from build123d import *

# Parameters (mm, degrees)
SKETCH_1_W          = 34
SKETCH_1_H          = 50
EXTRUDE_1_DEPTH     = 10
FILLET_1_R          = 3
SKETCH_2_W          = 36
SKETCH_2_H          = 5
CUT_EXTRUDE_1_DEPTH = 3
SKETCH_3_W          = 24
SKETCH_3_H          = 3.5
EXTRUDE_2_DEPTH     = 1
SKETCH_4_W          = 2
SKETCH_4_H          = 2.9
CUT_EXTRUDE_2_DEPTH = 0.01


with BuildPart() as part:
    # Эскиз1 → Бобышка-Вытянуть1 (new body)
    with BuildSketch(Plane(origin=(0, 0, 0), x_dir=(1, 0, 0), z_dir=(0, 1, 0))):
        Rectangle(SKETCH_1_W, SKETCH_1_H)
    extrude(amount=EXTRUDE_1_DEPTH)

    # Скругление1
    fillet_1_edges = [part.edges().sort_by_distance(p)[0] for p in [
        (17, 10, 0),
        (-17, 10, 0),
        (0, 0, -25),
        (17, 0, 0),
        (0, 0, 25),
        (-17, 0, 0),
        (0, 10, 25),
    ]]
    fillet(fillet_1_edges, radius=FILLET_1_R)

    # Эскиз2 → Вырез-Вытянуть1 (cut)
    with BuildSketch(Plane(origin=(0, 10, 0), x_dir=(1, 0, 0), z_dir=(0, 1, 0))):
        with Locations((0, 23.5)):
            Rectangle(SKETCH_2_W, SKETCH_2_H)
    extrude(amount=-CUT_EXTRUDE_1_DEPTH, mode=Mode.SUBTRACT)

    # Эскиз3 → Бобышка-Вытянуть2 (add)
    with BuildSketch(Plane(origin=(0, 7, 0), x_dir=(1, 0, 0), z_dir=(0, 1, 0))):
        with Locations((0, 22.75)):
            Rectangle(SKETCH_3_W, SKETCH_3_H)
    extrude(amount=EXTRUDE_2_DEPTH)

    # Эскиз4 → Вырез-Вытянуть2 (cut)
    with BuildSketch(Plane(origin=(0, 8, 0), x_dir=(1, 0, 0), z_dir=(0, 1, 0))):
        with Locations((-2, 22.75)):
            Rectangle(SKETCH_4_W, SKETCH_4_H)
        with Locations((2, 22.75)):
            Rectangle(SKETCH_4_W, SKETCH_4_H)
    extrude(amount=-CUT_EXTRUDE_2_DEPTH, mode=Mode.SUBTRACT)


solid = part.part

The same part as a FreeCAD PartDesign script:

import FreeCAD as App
import Part
import Sketcher

V = App.Vector


def edges_at(feature, points):
    """Names of the edges that pass closest to the given points."""
    edges = feature.Shape.Edges
    near = lambda p: min(range(len(edges)), key=lambda i: edges[i].distToShape(Part.Vertex(*p))[0])
    return sorted({f"Edge{near(p) + 1}" for p in points})


def add_polygon(sketch, points):
    """Adds a closed chain of lines whose ends are joined by coincident constraints."""
    first, n = sketch.GeometryCount, len(points)
    for a, b in zip(points, points[1:] + points[:1]):
        sketch.addGeometry(Part.LineSegment(App.Vector(*a, 0), App.Vector(*b, 0)), False)
    for i in range(n):
        sketch.addConstraint(Sketcher.Constraint("Coincident", first + i, 2, first + (i + 1) % n, 1))

doc = App.newDocument("Part")
body = doc.addObject("PartDesign::Body", "Body")

sketch1 = body.newObject("Sketcher::SketchObject", "Sketch")
sketch1.AttachmentSupport = (doc.getObject("XZ_Plane"), [""])
sketch1.MapMode = "FlatFace"
add_polygon(sketch1, [(-17, -25), (-17, 25), (17, 25), (17, -25)])
sketch1.addConstraint([
    Sketcher.Constraint("Vertical", 0),
    Sketcher.Constraint("Horizontal", 1),
    Sketcher.Constraint("Vertical", 2),
    Sketcher.Constraint("Horizontal", 3),
    Sketcher.Constraint("Symmetric", 0, 2, 2, 2, -1, 1),
    Sketcher.Constraint("DistanceX", 1, 1, 1, 2, 34.0),
    Sketcher.Constraint("DistanceY", 0, 1, 0, 2, 50.0),
])
pad1 = body.newObject("PartDesign::Pad", "Pad")
pad1.Profile = sketch1
pad1.Length = 10
pad1.Reversed = True
doc.recompute()

fillet = body.newObject("PartDesign::Fillet", "Fillet")
fillet.Base = (pad1, edges_at(pad1, [
    (17, 10, 0),
    (-17, 10, 0),
    (0, 0, -25),
    (17, 0, 0),
    (0, 0, 25),
    (-17, 0, 0),
    (0, 10, 25),
]))
fillet.Radius = 3

sketch2 = body.newObject("Sketcher::SketchObject", "Sketch001")
sketch2.AttachmentSupport = (doc.getObject("XZ_Plane"), [""])
sketch2.MapMode = "FlatFace"
sketch2.AttachmentOffset = App.Placement(V(0, 0, -10), App.Rotation())
add_polygon(sketch2, [(-18, -26), (-18, -21), (18, -21), (18, -26)])
sketch2.addConstraint([
    Sketcher.Constraint("Vertical", 0),
    Sketcher.Constraint("Horizontal", 1),
    Sketcher.Constraint("Vertical", 2),
    Sketcher.Constraint("Horizontal", 3),
    Sketcher.Constraint("DistanceX", 1, 1, 1, 2, 36.0),
    Sketcher.Constraint("DistanceY", 0, 1, 0, 2, 5.0),
    Sketcher.Constraint("DistanceX", 0, 2, -1, 1, 18.0),
    Sketcher.Constraint("DistanceY", 0, 2, -1, 1, 21.0),
])
pocket1 = body.newObject("PartDesign::Pocket", "Pocket")
pocket1.Profile = sketch2
pocket1.Length = 3
pocket1.Reversed = True

sketch3 = body.newObject("Sketcher::SketchObject", "Sketch002")
sketch3.AttachmentSupport = (doc.getObject("XZ_Plane"), [""])
sketch3.MapMode = "FlatFace"
sketch3.AttachmentOffset = App.Placement(V(0, 0, -7), App.Rotation())
add_polygon(sketch3, [(-12, -24.5), (-12, -21), (12, -21), (12, -24.5)])
sketch3.addConstraint([
    Sketcher.Constraint("Vertical", 0),
    Sketcher.Constraint("Horizontal", 1),
    Sketcher.Constraint("Vertical", 2),
    Sketcher.Constraint("Horizontal", 3),
    Sketcher.Constraint("DistanceX", 1, 1, 1, 2, 24.0),
    Sketcher.Constraint("DistanceY", 0, 1, 0, 2, 3.5),
    Sketcher.Constraint("DistanceX", 0, 2, -1, 1, 12.0),
    Sketcher.Constraint("DistanceY", 0, 2, -1, 1, 21.0),
])
pad2 = body.newObject("PartDesign::Pad", "Pad001")
pad2.Profile = sketch3
pad2.Length = 1
pad2.Reversed = True

sketch4 = body.newObject("Sketcher::SketchObject", "Sketch003")
sketch4.AttachmentSupport = (doc.getObject("XZ_Plane"), [""])
sketch4.MapMode = "FlatFace"
sketch4.AttachmentOffset = App.Placement(V(0, 0, -8), App.Rotation())
add_polygon(sketch4, [(-3, -24.2), (-3, -21.3), (-1, -21.3), (-1, -24.2)])
add_polygon(sketch4, [(1, -24.2), (1, -21.3), (3, -21.3), (3, -24.2)])
sketch4.addConstraint([
    Sketcher.Constraint("Vertical", 0),
    Sketcher.Constraint("Horizontal", 1),
    Sketcher.Constraint("Vertical", 2),
    Sketcher.Constraint("Horizontal", 3),
    Sketcher.Constraint("Vertical", 4),
    Sketcher.Constraint("Horizontal", 5),
    Sketcher.Constraint("Vertical", 6),
    Sketcher.Constraint("Horizontal", 7),
    Sketcher.Constraint("Symmetric", 1, 2, 4, 2, -2),
    Sketcher.Constraint("Symmetric", 3, 2, 6, 2, -2),
    Sketcher.Constraint("DistanceX", 1, 1, 1, 2, 2.0),
    Sketcher.Constraint("DistanceY", 0, 1, 0, 2, 2.9),
    Sketcher.Constraint("DistanceX", 0, 2, -1, 1, 3.0),
    Sketcher.Constraint("DistanceY", 0, 2, -1, 1, 21.3),
])
pocket2 = body.newObject("PartDesign::Pocket", "Pocket001")
pocket2.Profile = sketch4
pocket2.Length = 0.01
pocket2.Reversed = True

doc.recompute()
